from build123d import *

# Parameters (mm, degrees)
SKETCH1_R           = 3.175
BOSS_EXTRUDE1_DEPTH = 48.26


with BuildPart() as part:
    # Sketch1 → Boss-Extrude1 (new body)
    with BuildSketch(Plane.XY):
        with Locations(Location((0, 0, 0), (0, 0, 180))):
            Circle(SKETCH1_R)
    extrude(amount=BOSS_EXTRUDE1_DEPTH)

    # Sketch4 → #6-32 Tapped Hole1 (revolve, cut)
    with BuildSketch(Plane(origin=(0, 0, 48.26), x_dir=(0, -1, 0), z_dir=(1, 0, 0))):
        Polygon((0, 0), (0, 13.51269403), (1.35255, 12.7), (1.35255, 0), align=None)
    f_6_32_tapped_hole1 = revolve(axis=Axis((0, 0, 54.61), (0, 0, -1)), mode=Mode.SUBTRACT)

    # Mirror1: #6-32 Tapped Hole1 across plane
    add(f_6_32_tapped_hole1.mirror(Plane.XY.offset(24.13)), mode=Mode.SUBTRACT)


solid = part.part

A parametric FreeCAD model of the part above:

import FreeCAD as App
import Part
import Sketcher
from FreeCAD import Vector
Q = App.Units.Quantity

doc = App.newDocument("Part")
body = doc.addObject("PartDesign::Body", "Body")

sketch1 = body.newObject("Sketcher::SketchObject", "Sketch")
sketch1.AttachmentSupport = (doc.getObject("XY_Plane"), [""])
sketch1.MapMode = "FlatFace"
sketch1.addGeometry(Part.Circle(Vector(0, 0, 0), Vector(0, 0, 1), 3.2), False)
sketch1.addConstraint([
    Sketcher.Constraint("Coincident", 0, 3, -1, 1),
    Sketcher.Constraint("Diameter", 0, Q("0.25 in")),
])
pad1 = body.newObject("PartDesign::Pad", "Pad")
pad1.Profile = sketch1
pad1.Length = Q("1.9 in")

sketch2 = body.newObject("Sketcher::SketchObject", "Sketch001")
sketch2.AttachmentSupport = (doc.getObject("YZ_Plane"), [""])
sketch2.MapMode = "FlatFace"
sketch2.addGeometry([
    Part.LineSegment(Vector(0, 34.7, 0), Vector(0, 48.3, 0)),
    Part.LineSegment(Vector(0, 48.3, 0), Vector(-1.4, 48.3, 0)),
    Part.LineSegment(Vector(-1.4, 48.3, 0), Vector(-1.4, 35.6, 0)),
    Part.LineSegment(Vector(-1.4, 35.6, 0), Vector(0, 34.7, 0)),
], False)
sketch2.addConstraint([
    Sketcher.Constraint("Coincident", 0, 2, 1, 1),
    Sketcher.Constraint("Coincident", 1, 2, 2, 1),
    Sketcher.Constraint("Coincident", 2, 2, 3, 1),
    Sketcher.Constraint("Coincident", 3, 2, 0, 1),
    Sketcher.Constraint("Vertical", 0),
    Sketcher.Constraint("Horizontal", 1),
    Sketcher.Constraint("Vertical", 2),
    Sketcher.Constraint("PointOnObject", 0, 2, -2),
    Sketcher.Constraint("DistanceY", 2, 2, 2, 1, Q("0.5 in")),
    Sketcher.Constraint("Angle", 3, Q("-31 deg")),
    Sketcher.Constraint("DistanceY", -1, 1, 0, 2, Q("1.9 in")),
    Sketcher.Constraint("DistanceX", 1, 2, 1, 1, Q("1.35255 mm")),
])
groove = body.newObject("PartDesign::Groove", "Groove")
groove.Profile = sketch2
groove.ReferenceAxis = (sketch2, ["V_Axis"])
groove.Angle = 360
doc.recompute()

datumplane = body.newObject("PartDesign::Plane", "DatumPlane")
datumplane.AttachmentSupport = (doc.getObject("XY_Plane"), [""])
datumplane.MapMode = "FlatFace"
datumplane.AttachmentOffset = App.Placement(Vector(0, 0, 0.95 * 25.4), App.Rotation())
mirrored = body.newObject("PartDesign::Mirrored", "Mirrored")
mirrored.Originals = [groove]
mirrored.MirrorPlane = (datumplane, [""])
body.Tip = mirrored

doc.recompute()
